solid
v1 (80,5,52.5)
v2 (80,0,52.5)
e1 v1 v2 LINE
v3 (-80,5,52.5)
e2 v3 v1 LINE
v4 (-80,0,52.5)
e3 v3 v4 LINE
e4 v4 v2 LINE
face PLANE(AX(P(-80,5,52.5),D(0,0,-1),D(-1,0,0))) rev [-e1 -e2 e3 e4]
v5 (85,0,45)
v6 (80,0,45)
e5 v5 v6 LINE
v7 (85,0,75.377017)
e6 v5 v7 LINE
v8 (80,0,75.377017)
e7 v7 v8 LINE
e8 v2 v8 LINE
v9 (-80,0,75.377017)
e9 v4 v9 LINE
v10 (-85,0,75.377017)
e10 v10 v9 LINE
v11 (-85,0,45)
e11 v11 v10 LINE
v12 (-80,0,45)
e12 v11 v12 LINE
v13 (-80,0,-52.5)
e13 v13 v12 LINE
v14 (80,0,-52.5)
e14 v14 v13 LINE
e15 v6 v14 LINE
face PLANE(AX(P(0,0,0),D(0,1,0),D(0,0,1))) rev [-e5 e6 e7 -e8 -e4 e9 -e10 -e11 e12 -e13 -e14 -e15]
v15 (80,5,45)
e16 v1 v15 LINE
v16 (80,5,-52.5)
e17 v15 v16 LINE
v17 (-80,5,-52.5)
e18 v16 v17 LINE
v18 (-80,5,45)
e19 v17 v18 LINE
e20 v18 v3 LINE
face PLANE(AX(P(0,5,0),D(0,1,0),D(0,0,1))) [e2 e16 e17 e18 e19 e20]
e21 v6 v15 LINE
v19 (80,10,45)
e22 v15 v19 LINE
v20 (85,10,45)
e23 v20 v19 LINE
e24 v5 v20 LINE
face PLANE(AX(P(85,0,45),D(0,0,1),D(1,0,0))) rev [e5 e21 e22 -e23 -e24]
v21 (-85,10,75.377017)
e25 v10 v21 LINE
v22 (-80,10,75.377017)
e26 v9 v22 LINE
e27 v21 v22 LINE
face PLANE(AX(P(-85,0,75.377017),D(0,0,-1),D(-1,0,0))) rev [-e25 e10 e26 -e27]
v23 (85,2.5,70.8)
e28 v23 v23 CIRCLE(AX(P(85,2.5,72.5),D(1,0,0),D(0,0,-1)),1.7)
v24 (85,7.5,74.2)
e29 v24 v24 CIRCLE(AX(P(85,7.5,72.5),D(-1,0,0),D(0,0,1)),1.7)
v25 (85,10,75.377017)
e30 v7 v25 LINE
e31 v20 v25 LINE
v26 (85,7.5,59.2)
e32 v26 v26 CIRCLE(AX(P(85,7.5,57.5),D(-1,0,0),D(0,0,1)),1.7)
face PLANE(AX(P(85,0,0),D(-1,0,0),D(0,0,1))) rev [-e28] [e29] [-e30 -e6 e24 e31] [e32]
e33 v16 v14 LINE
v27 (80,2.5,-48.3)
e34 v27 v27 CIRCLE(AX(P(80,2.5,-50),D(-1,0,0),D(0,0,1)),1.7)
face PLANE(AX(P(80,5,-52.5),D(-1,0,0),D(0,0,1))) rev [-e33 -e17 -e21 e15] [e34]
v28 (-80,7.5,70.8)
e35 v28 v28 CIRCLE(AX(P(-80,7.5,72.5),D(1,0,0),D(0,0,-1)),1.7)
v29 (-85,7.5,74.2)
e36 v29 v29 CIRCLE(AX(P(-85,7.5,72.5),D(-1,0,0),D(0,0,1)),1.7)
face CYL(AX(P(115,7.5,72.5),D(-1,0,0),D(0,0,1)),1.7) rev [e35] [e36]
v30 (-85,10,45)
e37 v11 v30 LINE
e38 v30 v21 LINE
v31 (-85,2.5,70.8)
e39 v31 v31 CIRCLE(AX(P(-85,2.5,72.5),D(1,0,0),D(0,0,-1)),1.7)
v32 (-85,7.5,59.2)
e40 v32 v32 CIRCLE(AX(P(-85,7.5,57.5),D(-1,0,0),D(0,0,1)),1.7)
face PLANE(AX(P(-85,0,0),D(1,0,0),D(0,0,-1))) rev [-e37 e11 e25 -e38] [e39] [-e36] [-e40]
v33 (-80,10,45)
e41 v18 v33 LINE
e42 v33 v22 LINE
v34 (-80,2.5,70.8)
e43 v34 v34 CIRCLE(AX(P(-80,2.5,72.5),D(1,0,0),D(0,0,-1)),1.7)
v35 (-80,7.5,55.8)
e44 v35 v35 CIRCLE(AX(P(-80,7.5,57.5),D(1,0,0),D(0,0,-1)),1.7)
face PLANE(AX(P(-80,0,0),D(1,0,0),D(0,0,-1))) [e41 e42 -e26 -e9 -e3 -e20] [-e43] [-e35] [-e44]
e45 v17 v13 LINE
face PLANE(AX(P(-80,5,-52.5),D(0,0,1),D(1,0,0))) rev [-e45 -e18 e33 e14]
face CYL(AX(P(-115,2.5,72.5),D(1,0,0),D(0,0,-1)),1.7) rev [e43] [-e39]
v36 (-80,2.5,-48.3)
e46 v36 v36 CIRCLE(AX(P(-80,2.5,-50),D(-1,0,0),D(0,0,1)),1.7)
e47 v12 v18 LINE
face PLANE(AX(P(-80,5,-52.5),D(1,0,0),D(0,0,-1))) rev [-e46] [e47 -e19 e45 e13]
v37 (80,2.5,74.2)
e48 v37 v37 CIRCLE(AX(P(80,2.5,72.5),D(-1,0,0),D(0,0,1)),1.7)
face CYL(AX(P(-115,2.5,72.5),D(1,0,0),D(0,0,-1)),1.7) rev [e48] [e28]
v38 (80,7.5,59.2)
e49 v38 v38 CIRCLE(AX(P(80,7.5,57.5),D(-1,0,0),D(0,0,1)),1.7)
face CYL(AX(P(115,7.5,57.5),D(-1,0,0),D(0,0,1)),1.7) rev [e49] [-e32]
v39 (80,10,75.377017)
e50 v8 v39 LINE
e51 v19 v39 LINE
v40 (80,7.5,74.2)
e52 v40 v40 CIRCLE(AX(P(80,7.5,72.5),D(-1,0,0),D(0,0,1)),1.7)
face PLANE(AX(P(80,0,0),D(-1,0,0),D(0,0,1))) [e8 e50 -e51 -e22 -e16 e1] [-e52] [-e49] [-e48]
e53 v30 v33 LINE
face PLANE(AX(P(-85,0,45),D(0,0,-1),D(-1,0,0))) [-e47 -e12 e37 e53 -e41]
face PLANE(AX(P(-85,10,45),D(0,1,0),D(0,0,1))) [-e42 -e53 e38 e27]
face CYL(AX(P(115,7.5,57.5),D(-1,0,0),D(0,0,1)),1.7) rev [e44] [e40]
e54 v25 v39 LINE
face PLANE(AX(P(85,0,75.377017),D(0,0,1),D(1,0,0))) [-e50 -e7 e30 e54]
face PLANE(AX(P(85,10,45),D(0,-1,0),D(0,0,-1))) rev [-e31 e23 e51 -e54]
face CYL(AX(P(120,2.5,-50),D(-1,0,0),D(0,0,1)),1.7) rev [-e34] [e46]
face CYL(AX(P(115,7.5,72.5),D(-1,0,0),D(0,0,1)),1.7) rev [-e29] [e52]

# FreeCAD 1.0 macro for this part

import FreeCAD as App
import Part
import Sketcher

V = App.Vector


def add_polygon(sketch, points):
    """Adds a closed chain of lines whose ends are joined by coincident constraints."""
    first, n = sketch.GeometryCount, len(points)
    for a, b in zip(points, points[1:] + points[:1]):
        sketch.addGeometry(Part.LineSegment(App.Vector(*a, 0), App.Vector(*b, 0)), False)
    for i in range(n):
        sketch.addConstraint(Sketcher.Constraint("Coincident", first + i, 2, first + (i + 1) % n, 1))

doc = App.newDocument("Part")
body = doc.addObject("PartDesign::Body", "Body")

# Sketch on XZ plane
sketch1 = body.newObject("Sketcher::SketchObject", "Sketch")
sketch1.AttachmentSupport = (doc.getObject("XZ_Plane"), [""])
sketch1.MapMode = "FlatFace"
add_polygon(sketch1, [(-80, -52), (-80, 52), (80, 52), (80, -52)])  # lines 0-3
sketch1.addConstraint([
    Sketcher.Constraint("Vertical", 0),
    Sketcher.Constraint("Horizontal", 1),
    Sketcher.Constraint("Vertical", 2),
    Sketcher.Constraint("Horizontal", 3),
    Sketcher.Constraint("Symmetric", 0, 2, 2, 2, -1, 1),
    Sketcher.Constraint("DistanceX", 1, 1, 1, 2, 160.0),
    Sketcher.Constraint("DistanceY", 0, 1, 0, 2, 105.0),
])
pad1 = body.newObject("PartDesign::Pad", "Pad")
pad1.Profile = sketch1
pad1.Length = 5
pad1.Reversed = True

# Sketch on YZ plane
sketch2 = body.newObject("Sketcher::SketchObject", "Sketch001")
sketch2.AttachmentSupport = (doc.getObject("YZ_Plane"), [""])
sketch2.MapMode = "FlatFace"
sketch2.AttachmentOffset = App.Placement(V(0, 0, 80), App.Rotation())
add_polygon(sketch2, [(10, 75), (0, 75), (0, 45), (10, 45)])  # lines 0-3
sketch2.addConstraint([
    Sketcher.Constraint("Horizontal", 0),
    Sketcher.Constraint("Vertical", 1),
    Sketcher.Constraint("Horizontal", 2),
    Sketcher.Constraint("Vertical", 3),
    Sketcher.Constraint("PointOnObject", 0, 2, -2),
    Sketcher.Constraint("DistanceX", 0, 2, 0, 1, 10.0),
    Sketcher.Constraint("DistanceY", -1, 1, 1, 2, 45.0),
    Sketcher.Constraint("DistanceY", 1, 2, 1, 1, 30.377017),
])
pad2 = body.newObject("PartDesign::Pad", "Pad001")
pad2.Profile = sketch2
pad2.Length = 5

# Sketch on YZ plane
sketch3 = body.newObject("Sketcher::SketchObject", "Sketch002")
sketch3.AttachmentSupport = (doc.getObject("YZ_Plane"), [""])
sketch3.MapMode = "FlatFace"
sketch3.AttachmentOffset = App.Placement(V(0, 0, -80), App.Rotation())
add_polygon(sketch3, [(10, 45), (0, 45), (0, 75), (10, 75)])  # lines 0-3
sketch3.addConstraint([
    Sketcher.Constraint("Horizontal", 0),
    Sketcher.Constraint("Vertical", 1),
    Sketcher.Constraint("Horizontal", 2),
    Sketcher.Constraint("Vertical", 3),
    Sketcher.Constraint("PointOnObject", 0, 2, -2),
    Sketcher.Constraint("DistanceX", 0, 2, 0, 1, 10.0),
    Sketcher.Constraint("DistanceY", -1, 1, 0, 2, 45.0),
    Sketcher.Constraint("DistanceY", 1, 1, 1, 2, 30.377017),
])
pad3 = body.newObject("PartDesign::Pad", "Pad002")
pad3.Profile = sketch3
pad3.Length = 5
pad3.Reversed = True

# Sketch on YZ plane
sketch4 = body.newObject("Sketcher::SketchObject", "Sketch003")
sketch4.AttachmentSupport = (doc.getObject("YZ_Plane"), [""])
sketch4.MapMode = "FlatFace"
sketch4.AttachmentOffset = App.Placement(V(0, 0, -80), App.Rotation())
sketch4.addGeometry(Part.Circle(V(2.5, -50, 0), V(0, 0, 1), 1.7), False)
sketch4.addConstraint([
    Sketcher.Constraint("Diameter", 0, 3.4),
    Sketcher.Constraint("DistanceY", 0, 3, -1, 1, 50.0),
    Sketcher.Constraint("DistanceX", -1, 1, 0, 3, 2.5),
])
pocket1 = body.newObject("PartDesign::Pocket", "Pocket")
pocket1.Profile = sketch4
pocket1.Length = 200
pocket1.Reversed = True

# Sketch on YZ plane
sketch5 = body.newObject("Sketcher::SketchObject", "Sketch004")
sketch5.AttachmentSupport = (doc.getObject("YZ_Plane"), [""])
sketch5.MapMode = "FlatFace"
sketch5.AttachmentOffset = App.Placement(V(0, 0, -85), App.Rotation())
sketch5.addGeometry([
    Part.Circle(V(7.5, 57.5, 0), V(0, 0, 1), 1.7),
    Part.Circle(V(7.5, 72.5, 0), V(0, 0, 1), 1.7),
], False)
sketch5.addConstraint([
    Sketcher.Constraint("Equal", 0, 1),
    Sketcher.Constraint("Vertical", 0, 3, 1, 3),
    Sketcher.Constraint("Diameter", 0, 3.4),
    Sketcher.Constraint("DistanceY", 0, 3, 1, 3, 15.0),
    Sketcher.Constraint("DistanceX", -1, 1, 0, 3, 7.5),
    Sketcher.Constraint("DistanceY", -1, 1, 0, 3, 57.5),
])
pocket2 = body.newObject("PartDesign::Pocket", "Pocket001")
pocket2.Profile = sketch5
pocket2.Length = 200
pocket2.Reversed = True

# Sketch on YZ plane
sketch6 = body.newObject("Sketcher::SketchObject", "Sketch005")
sketch6.AttachmentSupport = (doc.getObject("YZ_Plane"), [""])
sketch6.MapMode = "FlatFace"
sketch6.AttachmentOffset = App.Placement(V(0, 0, 85), App.Rotation())
sketch6.addGeometry(Part.Circle(V(2.5, 72.5, 0), V(0, 0, 1), 1.7), False)
sketch6.addConstraint([
    Sketcher.Constraint("Diameter", 0, 3.4),
    Sketcher.Constraint("DistanceX", -1, 1, 0, 3, 2.5),
    Sketcher.Constraint("DistanceY", -1, 1, 0, 3, 72.5),
])
pocket3 = body.newObject("PartDesign::Pocket", "Pocket002")
pocket3.Profile = sketch6
pocket3.Length = 200

doc.recompute()
